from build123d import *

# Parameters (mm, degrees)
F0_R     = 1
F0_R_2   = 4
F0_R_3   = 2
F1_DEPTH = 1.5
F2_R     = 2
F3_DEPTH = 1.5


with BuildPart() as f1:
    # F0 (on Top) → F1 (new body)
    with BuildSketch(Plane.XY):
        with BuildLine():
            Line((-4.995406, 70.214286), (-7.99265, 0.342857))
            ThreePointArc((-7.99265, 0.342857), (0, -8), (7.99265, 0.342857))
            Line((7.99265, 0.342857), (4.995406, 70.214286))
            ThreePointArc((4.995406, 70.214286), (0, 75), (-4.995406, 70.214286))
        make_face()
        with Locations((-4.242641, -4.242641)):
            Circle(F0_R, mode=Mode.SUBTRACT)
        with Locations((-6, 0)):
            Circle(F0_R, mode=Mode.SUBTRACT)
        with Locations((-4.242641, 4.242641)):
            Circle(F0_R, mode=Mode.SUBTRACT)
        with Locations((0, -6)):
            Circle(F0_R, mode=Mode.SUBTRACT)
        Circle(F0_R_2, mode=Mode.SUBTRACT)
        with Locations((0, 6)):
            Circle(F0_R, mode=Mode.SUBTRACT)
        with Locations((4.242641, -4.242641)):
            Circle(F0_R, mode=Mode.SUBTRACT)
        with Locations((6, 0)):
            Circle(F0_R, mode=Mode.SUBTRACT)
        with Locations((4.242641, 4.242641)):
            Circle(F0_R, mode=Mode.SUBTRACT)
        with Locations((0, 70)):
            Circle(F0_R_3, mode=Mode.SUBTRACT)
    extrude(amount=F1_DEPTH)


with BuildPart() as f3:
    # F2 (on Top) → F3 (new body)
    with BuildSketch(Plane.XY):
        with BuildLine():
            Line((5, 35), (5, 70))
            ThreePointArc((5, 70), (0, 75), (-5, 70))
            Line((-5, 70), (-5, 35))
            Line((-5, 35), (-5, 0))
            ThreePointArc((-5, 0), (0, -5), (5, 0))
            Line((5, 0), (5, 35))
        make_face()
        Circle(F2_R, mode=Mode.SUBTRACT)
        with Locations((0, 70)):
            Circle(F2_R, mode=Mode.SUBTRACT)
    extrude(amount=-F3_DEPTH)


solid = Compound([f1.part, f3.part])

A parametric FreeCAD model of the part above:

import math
import FreeCAD as App
import Part
import Sketcher
Q = App.Units.Quantity

doc = App.newDocument("Part")
body = doc.addObject("PartDesign::Body", "Body")

sketch1 = body.newObject("Sketcher::SketchObject", "Sketch")
sketch1.AttachmentSupport = (doc.getObject("XY_Plane"), [""])
sketch1.MapMode = "FlatFace"
sketch1.addGeometry([
    Part.LineSegment(App.Vector(-5, 70.2, 0), App.Vector(-8, 0.3, 0)),
    Part.ArcOfCircle(Part.Circle(App.Vector(0, 0, 0), App.Vector(0, 0, 1), 8), math.radians(178), math.radians(362)),
    Part.LineSegment(App.Vector(8, 0.3, 0), App.Vector(5, 70.2, 0)),
    Part.ArcOfCircle(Part.Circle(App.Vector(0, 70, 0), App.Vector(0, 0, 1), 5), math.radians(2), math.radians(178)),
    Part.Circle(App.Vector(-6, 0, 0), App.Vector(0, 0, 1), 1),
    Part.Circle(App.Vector(-4.2, -4.2, 0), App.Vector(0, 0, 1), 1),
    Part.Circle(App.Vector(-4.2, 4.2, 0), App.Vector(0, 0, 1), 1),
    Part.Circle(App.Vector(0, -6, 0), App.Vector(0, 0, 1), 1),
    Part.Circle(App.Vector(0, 0, 0), App.Vector(0, 0, 1), 4),
    Part.Circle(App.Vector(0, 6, 0), App.Vector(0, 0, 1), 1),
    Part.Circle(App.Vector(4.2, -4.2, 0), App.Vector(0, 0, 1), 1),
    Part.Circle(App.Vector(6, 0, 0), App.Vector(0, 0, 1), 1),
    Part.Circle(App.Vector(4.2, 4.2, 0), App.Vector(0, 0, 1), 1),
    Part.Circle(App.Vector(0, 70, 0), App.Vector(0, 0, 1), 2),
], False)
sketch1.addConstraint([
    Sketcher.Constraint("Tangent", 0, 2, 1, 1),
    Sketcher.Constraint("Tangent", 1, 2, 2, 1),
    Sketcher.Constraint("Tangent", 2, 2, 3, 1),
    Sketcher.Constraint("Tangent", 3, 2, 0, 1),
    Sketcher.Constraint("Coincident", 1, 3, -1, 1),
    Sketcher.Constraint("Coincident", 8, 3, -1, 1),
    Sketcher.Constraint("Coincident", 13, 3, 3, 3),
    Sketcher.Constraint("Equal", 4, 5),
    Sketcher.Constraint("Equal", 5, 6),
    Sketcher.Constraint("Equal", 6, 7),
    Sketcher.Constraint("Equal", 7, 9),
    Sketcher.Constraint("Equal", 9, 10),
    Sketcher.Constraint("Equal", 10, 11),
    Sketcher.Constraint("Equal", 11, 12),
    Sketcher.Constraint("Symmetric", 7, 3, 9, 3, -1, 1),
    Sketcher.Constraint("Symmetric", 6, 3, 10, 3, -1, 1),
    Sketcher.Constraint("Symmetric", 4, 3, 11, 3, -1, 1),
    Sketcher.Constraint("Symmetric", 5, 3, 12, 3, -1, 1),
    Sketcher.Constraint("Symmetric", 5, 3, 10, 3, -2),
    Sketcher.Constraint("PointOnObject", 3, 3, -2),
    Sketcher.Constraint("PointOnObject", 4, 3, -1),
    Sketcher.Constraint("PointOnObject", 7, 3, -2),
    Sketcher.Constraint("Diameter", 4, Q("2 mm")),
    Sketcher.Constraint("Diameter", 8, Q("8 mm")),
    Sketcher.Constraint("Diameter", 13, Q("4 mm")),
    Sketcher.Constraint("Radius", 1, Q("8 mm")),
    Sketcher.Constraint("Radius", 3, Q("5 mm")),
    Sketcher.Constraint("DistanceY", -1, 1, 3, 3, Q("70 mm")),
    Sketcher.Constraint("DistanceX", 4, 3, -1, 1, Q("6 mm")),
    Sketcher.Constraint("DistanceY", 7, 3, -1, 1, Q("6 mm")),
    Sketcher.Constraint("DistanceY", 5, 3, 0, 2, Q("4.585498 mm")),
    Sketcher.Constraint("DistanceX", 5, 3, -1, 1, Q("4.242641 mm")),
])
pad1 = body.newObject("PartDesign::Pad", "Pad")
pad1.Profile = sketch1
pad1.Length = 1.5
body2 = doc.addObject("PartDesign::Body", "Body001")

sketch2 = body2.newObject("Sketcher::SketchObject", "Sketch001")
sketch2.AttachmentSupport = (doc.getObject("XY_Plane001"), [""])
sketch2.MapMode = "FlatFace"
sketch2.addGeometry([
    Part.ArcOfCircle(Part.Circle(App.Vector(0, 70, 0), App.Vector(0, 0, 1), 5), math.radians(0), math.radians(180)),
    Part.LineSegment(App.Vector(-5, 70, 0), App.Vector(-5, 0, 0)),
    Part.ArcOfCircle(Part.Circle(App.Vector(0, 0, 0), App.Vector(0, 0, 1), 5), math.radians(180), math.radians(360)),
    Part.LineSegment(App.Vector(5, 0, 0), App.Vector(5, 70, 0)),
    Part.Circle(App.Vector(0, 0, 0), App.Vector(0, 0, 1), 2),
    Part.Circle(App.Vector(0, 70, 0), App.Vector(0, 0, 1), 2),
], False)
sketch2.addConstraint([
    Sketcher.Constraint("Tangent", 0, 2, 1, 1),
    Sketcher.Constraint("Tangent", 1, 2, 2, 1),
    Sketcher.Constraint("Tangent", 2, 2, 3, 1),
    Sketcher.Constraint("Tangent", 3, 2, 0, 1),
    Sketcher.Constraint("Vertical", 1),
    Sketcher.Constraint("Vertical", 3),
    Sketcher.Constraint("Coincident", 2, 3, -1, 1),
    Sketcher.Constraint("Coincident", 4, 3, -1, 1),
    Sketcher.Constraint("Coincident", 5, 3, 0, 3),
    Sketcher.Constraint("Equal", 4, 5),
    Sketcher.Constraint("Diameter", 4, Q("4 mm")),
    Sketcher.Constraint("Radius", 0, Q("5 mm")),
    Sketcher.Constraint("DistanceY", 1, 2, 1, 1, Q("70 mm")),
])
pad2 = body2.newObject("PartDesign::Pad", "Pad001")
pad2.Profile = sketch2
pad2.Length = 1.5
pad2.Reversed = True

doc.recompute()
